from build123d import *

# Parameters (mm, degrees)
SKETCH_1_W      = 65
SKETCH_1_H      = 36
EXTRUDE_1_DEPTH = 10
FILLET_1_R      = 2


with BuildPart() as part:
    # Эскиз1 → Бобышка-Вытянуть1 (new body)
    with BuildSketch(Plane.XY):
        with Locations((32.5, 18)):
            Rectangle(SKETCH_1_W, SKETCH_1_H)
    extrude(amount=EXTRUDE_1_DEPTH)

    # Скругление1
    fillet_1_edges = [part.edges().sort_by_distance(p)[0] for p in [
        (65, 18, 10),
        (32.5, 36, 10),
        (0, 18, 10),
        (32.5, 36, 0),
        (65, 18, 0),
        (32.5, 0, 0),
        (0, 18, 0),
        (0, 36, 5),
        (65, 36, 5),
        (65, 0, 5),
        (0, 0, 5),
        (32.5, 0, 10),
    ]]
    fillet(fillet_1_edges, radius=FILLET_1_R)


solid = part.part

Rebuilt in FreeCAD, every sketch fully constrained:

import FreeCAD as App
import Part
import Sketcher

V = App.Vector


def add_polygon(sketch, points):
    """Adds a closed chain of lines whose ends are joined by coincident constraints."""
    first, n = sketch.GeometryCount, len(points)
    for a, b in zip(points, points[1:] + points[:1]):
        sketch.addGeometry(Part.LineSegment(App.Vector(*a, 0), App.Vector(*b, 0)), False)
    for i in range(n):
        sketch.addConstraint(Sketcher.Constraint("Coincident", first + i, 2, first + (i + 1) % n, 1))

doc = App.newDocument("Part")
body = doc.addObject("PartDesign::Body", "Body")

# Sketch on XY plane
sketch1 = body.newObject("Sketcher::SketchObject", "Sketch")
sketch1.AttachmentSupport = (doc.getObject("XY_Plane"), [""])
sketch1.MapMode = "FlatFace"
add_polygon(sketch1, [(0, 36), (0, 0), (65, 0), (65, 36)])  # lines 0-3
sketch1.addConstraint([
    Sketcher.Constraint("Vertical", 0),
    Sketcher.Constraint("Horizontal", 1),
    Sketcher.Constraint("Vertical", 2),
    Sketcher.Constraint("Horizontal", 3),
    Sketcher.Constraint("Coincident", 0, 2, -1, 1),
    Sketcher.Constraint("DistanceX", 1, 1, 1, 2, 65.0),
    Sketcher.Constraint("DistanceY", 0, 2, 0, 1, 36.0),
])
pad1 = body.newObject("PartDesign::Pad", "Pad")
pad1.Profile = sketch1
pad1.Length = 10
doc.recompute()

fillet = body.newObject("PartDesign::Fillet", "Fillet")
fillet.Base = (pad1, ["Edge1"])
fillet.UseAllEdges = True
fillet.Radius = 2

doc.recompute()
